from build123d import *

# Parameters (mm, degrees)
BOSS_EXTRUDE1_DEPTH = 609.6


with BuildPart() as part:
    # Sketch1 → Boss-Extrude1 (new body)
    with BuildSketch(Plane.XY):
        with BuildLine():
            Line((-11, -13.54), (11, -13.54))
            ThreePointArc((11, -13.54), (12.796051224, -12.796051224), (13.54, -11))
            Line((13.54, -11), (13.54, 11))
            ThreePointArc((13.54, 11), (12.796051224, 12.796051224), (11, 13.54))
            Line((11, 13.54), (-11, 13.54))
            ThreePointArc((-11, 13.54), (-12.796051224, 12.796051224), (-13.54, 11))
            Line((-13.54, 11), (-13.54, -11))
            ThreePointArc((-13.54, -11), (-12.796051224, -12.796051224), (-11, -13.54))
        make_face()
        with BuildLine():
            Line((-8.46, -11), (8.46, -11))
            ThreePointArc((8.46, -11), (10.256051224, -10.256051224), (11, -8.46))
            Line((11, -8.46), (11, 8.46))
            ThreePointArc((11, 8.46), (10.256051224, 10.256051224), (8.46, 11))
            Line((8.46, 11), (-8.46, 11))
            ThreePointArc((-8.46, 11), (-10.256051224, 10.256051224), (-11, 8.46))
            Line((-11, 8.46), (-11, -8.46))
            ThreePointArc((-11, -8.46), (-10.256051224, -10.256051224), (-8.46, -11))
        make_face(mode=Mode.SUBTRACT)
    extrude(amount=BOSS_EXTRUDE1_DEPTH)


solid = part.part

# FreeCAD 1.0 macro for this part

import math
import FreeCAD as App
import Part
import Sketcher
Q = App.Units.Quantity

doc = App.newDocument("Part")
body = doc.addObject("PartDesign::Body", "Body")

sketch1 = body.newObject("Sketcher::SketchObject", "Sketch")
sketch1.AttachmentSupport = (doc.getObject("XY_Plane"), [""])
sketch1.MapMode = "FlatFace"
sketch1.addGeometry([
    Part.LineSegment(App.Vector(-11, -13.54, 0), App.Vector(11, -13.54, 0)),
    Part.ArcOfCircle(Part.Circle(App.Vector(11, -11, 0), App.Vector(0, 0, 1), 2.54), math.radians(-90), math.radians(0)),
    Part.LineSegment(App.Vector(13.54, -11, 0), App.Vector(13.54, 11, 0)),
    Part.ArcOfCircle(Part.Circle(App.Vector(11, 11, 0), App.Vector(0, 0, 1), 2.54), math.radians(0), math.radians(90)),
    Part.LineSegment(App.Vector(11, 13.54, 0), App.Vector(-11, 13.54, 0)),
    Part.ArcOfCircle(Part.Circle(App.Vector(-11, 11, 0), App.Vector(0, 0, 1), 2.54), math.radians(90), math.radians(180)),
    Part.LineSegment(App.Vector(-13.54, 11, 0), App.Vector(-13.54, -11, 0)),
    Part.ArcOfCircle(Part.Circle(App.Vector(-11, -11, 0), App.Vector(0, 0, 1), 2.54), math.radians(-180), math.radians(-90)),
    Part.LineSegment(App.Vector(8.46, -11, 0), App.Vector(-8.46, -11, 0)),
    Part.ArcOfCircle(Part.Circle(App.Vector(-8.46, -8.46, 0), App.Vector(0, 0, 1), 2.54), math.radians(-180), math.radians(-90)),
    Part.LineSegment(App.Vector(-11, -8.46, 0), App.Vector(-11, 8.46, 0)),
    Part.ArcOfCircle(Part.Circle(App.Vector(-8.46, 8.46, 0), App.Vector(0, 0, 1), 2.54), math.radians(90), math.radians(180)),
    Part.LineSegment(App.Vector(-8.46, 11, 0), App.Vector(8.46, 11, 0)),
    Part.ArcOfCircle(Part.Circle(App.Vector(8.46, 8.46, 0), App.Vector(0, 0, 1), 2.54), math.radians(0), math.radians(90)),
    Part.LineSegment(App.Vector(11, 8.46, 0), App.Vector(11, -8.46, 0)),
    Part.ArcOfCircle(Part.Circle(App.Vector(8.46, -8.46, 0), App.Vector(0, 0, 1), 2.54), math.radians(-90), math.radians(0)),
], False)
sketch1.addConstraint([
    Sketcher.Constraint("Tangent", 0, 2, 1, 1),
    Sketcher.Constraint("Tangent", 1, 2, 2, 1),
    Sketcher.Constraint("Tangent", 2, 2, 3, 1),
    Sketcher.Constraint("Tangent", 3, 2, 4, 1),
    Sketcher.Constraint("Tangent", 4, 2, 5, 1),
    Sketcher.Constraint("Tangent", 5, 2, 6, 1),
    Sketcher.Constraint("Tangent", 6, 2, 7, 1),
    Sketcher.Constraint("Tangent", 7, 2, 0, 1),
    Sketcher.Constraint("Tangent", 8, 2, 9, 2),
    Sketcher.Constraint("Tangent", 9, 1, 10, 1),
    Sketcher.Constraint("Tangent", 10, 2, 11, 2),
    Sketcher.Constraint("Tangent", 11, 1, 12, 1),
    Sketcher.Constraint("Tangent", 12, 2, 13, 2),
    Sketcher.Constraint("Tangent", 13, 1, 14, 1),
    Sketcher.Constraint("Tangent", 14, 2, 15, 2),
    Sketcher.Constraint("Tangent", 15, 1, 8, 1),
    Sketcher.Constraint("Horizontal", 0),
    Sketcher.Constraint("Vertical", 2),
    Sketcher.Constraint("Horizontal", 4),
    Sketcher.Constraint("Vertical", 6),
    Sketcher.Constraint("Horizontal", 8),
    Sketcher.Constraint("Vertical", 10),
    Sketcher.Constraint("Horizontal", 12),
    Sketcher.Constraint("Vertical", 14),
    Sketcher.Constraint("Equal", 1, 3),
    Sketcher.Constraint("Equal", 3, 5),
    Sketcher.Constraint("Equal", 5, 7),
    Sketcher.Constraint("Equal", 7, 9),
    Sketcher.Constraint("Equal", 9, 11),
    Sketcher.Constraint("Equal", 11, 13),
    Sketcher.Constraint("Equal", 13, 15),
    Sketcher.Constraint("Symmetric", 1, 3, 5, 3, -1, 1),
    Sketcher.Constraint("Symmetric", 9, 3, 13, 3, -1, 1),
    Sketcher.Constraint("Horizontal", 6, 2, 8, 2),
    Sketcher.Constraint("Vertical", 7, 2, 9, 1),
    Sketcher.Constraint("Equal", 4, 2),
    Sketcher.Constraint("Radius", 1, Q("0.1 in")),
    Sketcher.Constraint("DistanceX", 0, 1, 0, 2, Q("22 mm")),
])
pad1 = body.newObject("PartDesign::Pad", "Pad")
pad1.Profile = sketch1
pad1.Length = Q("24 in")

doc.recompute()
